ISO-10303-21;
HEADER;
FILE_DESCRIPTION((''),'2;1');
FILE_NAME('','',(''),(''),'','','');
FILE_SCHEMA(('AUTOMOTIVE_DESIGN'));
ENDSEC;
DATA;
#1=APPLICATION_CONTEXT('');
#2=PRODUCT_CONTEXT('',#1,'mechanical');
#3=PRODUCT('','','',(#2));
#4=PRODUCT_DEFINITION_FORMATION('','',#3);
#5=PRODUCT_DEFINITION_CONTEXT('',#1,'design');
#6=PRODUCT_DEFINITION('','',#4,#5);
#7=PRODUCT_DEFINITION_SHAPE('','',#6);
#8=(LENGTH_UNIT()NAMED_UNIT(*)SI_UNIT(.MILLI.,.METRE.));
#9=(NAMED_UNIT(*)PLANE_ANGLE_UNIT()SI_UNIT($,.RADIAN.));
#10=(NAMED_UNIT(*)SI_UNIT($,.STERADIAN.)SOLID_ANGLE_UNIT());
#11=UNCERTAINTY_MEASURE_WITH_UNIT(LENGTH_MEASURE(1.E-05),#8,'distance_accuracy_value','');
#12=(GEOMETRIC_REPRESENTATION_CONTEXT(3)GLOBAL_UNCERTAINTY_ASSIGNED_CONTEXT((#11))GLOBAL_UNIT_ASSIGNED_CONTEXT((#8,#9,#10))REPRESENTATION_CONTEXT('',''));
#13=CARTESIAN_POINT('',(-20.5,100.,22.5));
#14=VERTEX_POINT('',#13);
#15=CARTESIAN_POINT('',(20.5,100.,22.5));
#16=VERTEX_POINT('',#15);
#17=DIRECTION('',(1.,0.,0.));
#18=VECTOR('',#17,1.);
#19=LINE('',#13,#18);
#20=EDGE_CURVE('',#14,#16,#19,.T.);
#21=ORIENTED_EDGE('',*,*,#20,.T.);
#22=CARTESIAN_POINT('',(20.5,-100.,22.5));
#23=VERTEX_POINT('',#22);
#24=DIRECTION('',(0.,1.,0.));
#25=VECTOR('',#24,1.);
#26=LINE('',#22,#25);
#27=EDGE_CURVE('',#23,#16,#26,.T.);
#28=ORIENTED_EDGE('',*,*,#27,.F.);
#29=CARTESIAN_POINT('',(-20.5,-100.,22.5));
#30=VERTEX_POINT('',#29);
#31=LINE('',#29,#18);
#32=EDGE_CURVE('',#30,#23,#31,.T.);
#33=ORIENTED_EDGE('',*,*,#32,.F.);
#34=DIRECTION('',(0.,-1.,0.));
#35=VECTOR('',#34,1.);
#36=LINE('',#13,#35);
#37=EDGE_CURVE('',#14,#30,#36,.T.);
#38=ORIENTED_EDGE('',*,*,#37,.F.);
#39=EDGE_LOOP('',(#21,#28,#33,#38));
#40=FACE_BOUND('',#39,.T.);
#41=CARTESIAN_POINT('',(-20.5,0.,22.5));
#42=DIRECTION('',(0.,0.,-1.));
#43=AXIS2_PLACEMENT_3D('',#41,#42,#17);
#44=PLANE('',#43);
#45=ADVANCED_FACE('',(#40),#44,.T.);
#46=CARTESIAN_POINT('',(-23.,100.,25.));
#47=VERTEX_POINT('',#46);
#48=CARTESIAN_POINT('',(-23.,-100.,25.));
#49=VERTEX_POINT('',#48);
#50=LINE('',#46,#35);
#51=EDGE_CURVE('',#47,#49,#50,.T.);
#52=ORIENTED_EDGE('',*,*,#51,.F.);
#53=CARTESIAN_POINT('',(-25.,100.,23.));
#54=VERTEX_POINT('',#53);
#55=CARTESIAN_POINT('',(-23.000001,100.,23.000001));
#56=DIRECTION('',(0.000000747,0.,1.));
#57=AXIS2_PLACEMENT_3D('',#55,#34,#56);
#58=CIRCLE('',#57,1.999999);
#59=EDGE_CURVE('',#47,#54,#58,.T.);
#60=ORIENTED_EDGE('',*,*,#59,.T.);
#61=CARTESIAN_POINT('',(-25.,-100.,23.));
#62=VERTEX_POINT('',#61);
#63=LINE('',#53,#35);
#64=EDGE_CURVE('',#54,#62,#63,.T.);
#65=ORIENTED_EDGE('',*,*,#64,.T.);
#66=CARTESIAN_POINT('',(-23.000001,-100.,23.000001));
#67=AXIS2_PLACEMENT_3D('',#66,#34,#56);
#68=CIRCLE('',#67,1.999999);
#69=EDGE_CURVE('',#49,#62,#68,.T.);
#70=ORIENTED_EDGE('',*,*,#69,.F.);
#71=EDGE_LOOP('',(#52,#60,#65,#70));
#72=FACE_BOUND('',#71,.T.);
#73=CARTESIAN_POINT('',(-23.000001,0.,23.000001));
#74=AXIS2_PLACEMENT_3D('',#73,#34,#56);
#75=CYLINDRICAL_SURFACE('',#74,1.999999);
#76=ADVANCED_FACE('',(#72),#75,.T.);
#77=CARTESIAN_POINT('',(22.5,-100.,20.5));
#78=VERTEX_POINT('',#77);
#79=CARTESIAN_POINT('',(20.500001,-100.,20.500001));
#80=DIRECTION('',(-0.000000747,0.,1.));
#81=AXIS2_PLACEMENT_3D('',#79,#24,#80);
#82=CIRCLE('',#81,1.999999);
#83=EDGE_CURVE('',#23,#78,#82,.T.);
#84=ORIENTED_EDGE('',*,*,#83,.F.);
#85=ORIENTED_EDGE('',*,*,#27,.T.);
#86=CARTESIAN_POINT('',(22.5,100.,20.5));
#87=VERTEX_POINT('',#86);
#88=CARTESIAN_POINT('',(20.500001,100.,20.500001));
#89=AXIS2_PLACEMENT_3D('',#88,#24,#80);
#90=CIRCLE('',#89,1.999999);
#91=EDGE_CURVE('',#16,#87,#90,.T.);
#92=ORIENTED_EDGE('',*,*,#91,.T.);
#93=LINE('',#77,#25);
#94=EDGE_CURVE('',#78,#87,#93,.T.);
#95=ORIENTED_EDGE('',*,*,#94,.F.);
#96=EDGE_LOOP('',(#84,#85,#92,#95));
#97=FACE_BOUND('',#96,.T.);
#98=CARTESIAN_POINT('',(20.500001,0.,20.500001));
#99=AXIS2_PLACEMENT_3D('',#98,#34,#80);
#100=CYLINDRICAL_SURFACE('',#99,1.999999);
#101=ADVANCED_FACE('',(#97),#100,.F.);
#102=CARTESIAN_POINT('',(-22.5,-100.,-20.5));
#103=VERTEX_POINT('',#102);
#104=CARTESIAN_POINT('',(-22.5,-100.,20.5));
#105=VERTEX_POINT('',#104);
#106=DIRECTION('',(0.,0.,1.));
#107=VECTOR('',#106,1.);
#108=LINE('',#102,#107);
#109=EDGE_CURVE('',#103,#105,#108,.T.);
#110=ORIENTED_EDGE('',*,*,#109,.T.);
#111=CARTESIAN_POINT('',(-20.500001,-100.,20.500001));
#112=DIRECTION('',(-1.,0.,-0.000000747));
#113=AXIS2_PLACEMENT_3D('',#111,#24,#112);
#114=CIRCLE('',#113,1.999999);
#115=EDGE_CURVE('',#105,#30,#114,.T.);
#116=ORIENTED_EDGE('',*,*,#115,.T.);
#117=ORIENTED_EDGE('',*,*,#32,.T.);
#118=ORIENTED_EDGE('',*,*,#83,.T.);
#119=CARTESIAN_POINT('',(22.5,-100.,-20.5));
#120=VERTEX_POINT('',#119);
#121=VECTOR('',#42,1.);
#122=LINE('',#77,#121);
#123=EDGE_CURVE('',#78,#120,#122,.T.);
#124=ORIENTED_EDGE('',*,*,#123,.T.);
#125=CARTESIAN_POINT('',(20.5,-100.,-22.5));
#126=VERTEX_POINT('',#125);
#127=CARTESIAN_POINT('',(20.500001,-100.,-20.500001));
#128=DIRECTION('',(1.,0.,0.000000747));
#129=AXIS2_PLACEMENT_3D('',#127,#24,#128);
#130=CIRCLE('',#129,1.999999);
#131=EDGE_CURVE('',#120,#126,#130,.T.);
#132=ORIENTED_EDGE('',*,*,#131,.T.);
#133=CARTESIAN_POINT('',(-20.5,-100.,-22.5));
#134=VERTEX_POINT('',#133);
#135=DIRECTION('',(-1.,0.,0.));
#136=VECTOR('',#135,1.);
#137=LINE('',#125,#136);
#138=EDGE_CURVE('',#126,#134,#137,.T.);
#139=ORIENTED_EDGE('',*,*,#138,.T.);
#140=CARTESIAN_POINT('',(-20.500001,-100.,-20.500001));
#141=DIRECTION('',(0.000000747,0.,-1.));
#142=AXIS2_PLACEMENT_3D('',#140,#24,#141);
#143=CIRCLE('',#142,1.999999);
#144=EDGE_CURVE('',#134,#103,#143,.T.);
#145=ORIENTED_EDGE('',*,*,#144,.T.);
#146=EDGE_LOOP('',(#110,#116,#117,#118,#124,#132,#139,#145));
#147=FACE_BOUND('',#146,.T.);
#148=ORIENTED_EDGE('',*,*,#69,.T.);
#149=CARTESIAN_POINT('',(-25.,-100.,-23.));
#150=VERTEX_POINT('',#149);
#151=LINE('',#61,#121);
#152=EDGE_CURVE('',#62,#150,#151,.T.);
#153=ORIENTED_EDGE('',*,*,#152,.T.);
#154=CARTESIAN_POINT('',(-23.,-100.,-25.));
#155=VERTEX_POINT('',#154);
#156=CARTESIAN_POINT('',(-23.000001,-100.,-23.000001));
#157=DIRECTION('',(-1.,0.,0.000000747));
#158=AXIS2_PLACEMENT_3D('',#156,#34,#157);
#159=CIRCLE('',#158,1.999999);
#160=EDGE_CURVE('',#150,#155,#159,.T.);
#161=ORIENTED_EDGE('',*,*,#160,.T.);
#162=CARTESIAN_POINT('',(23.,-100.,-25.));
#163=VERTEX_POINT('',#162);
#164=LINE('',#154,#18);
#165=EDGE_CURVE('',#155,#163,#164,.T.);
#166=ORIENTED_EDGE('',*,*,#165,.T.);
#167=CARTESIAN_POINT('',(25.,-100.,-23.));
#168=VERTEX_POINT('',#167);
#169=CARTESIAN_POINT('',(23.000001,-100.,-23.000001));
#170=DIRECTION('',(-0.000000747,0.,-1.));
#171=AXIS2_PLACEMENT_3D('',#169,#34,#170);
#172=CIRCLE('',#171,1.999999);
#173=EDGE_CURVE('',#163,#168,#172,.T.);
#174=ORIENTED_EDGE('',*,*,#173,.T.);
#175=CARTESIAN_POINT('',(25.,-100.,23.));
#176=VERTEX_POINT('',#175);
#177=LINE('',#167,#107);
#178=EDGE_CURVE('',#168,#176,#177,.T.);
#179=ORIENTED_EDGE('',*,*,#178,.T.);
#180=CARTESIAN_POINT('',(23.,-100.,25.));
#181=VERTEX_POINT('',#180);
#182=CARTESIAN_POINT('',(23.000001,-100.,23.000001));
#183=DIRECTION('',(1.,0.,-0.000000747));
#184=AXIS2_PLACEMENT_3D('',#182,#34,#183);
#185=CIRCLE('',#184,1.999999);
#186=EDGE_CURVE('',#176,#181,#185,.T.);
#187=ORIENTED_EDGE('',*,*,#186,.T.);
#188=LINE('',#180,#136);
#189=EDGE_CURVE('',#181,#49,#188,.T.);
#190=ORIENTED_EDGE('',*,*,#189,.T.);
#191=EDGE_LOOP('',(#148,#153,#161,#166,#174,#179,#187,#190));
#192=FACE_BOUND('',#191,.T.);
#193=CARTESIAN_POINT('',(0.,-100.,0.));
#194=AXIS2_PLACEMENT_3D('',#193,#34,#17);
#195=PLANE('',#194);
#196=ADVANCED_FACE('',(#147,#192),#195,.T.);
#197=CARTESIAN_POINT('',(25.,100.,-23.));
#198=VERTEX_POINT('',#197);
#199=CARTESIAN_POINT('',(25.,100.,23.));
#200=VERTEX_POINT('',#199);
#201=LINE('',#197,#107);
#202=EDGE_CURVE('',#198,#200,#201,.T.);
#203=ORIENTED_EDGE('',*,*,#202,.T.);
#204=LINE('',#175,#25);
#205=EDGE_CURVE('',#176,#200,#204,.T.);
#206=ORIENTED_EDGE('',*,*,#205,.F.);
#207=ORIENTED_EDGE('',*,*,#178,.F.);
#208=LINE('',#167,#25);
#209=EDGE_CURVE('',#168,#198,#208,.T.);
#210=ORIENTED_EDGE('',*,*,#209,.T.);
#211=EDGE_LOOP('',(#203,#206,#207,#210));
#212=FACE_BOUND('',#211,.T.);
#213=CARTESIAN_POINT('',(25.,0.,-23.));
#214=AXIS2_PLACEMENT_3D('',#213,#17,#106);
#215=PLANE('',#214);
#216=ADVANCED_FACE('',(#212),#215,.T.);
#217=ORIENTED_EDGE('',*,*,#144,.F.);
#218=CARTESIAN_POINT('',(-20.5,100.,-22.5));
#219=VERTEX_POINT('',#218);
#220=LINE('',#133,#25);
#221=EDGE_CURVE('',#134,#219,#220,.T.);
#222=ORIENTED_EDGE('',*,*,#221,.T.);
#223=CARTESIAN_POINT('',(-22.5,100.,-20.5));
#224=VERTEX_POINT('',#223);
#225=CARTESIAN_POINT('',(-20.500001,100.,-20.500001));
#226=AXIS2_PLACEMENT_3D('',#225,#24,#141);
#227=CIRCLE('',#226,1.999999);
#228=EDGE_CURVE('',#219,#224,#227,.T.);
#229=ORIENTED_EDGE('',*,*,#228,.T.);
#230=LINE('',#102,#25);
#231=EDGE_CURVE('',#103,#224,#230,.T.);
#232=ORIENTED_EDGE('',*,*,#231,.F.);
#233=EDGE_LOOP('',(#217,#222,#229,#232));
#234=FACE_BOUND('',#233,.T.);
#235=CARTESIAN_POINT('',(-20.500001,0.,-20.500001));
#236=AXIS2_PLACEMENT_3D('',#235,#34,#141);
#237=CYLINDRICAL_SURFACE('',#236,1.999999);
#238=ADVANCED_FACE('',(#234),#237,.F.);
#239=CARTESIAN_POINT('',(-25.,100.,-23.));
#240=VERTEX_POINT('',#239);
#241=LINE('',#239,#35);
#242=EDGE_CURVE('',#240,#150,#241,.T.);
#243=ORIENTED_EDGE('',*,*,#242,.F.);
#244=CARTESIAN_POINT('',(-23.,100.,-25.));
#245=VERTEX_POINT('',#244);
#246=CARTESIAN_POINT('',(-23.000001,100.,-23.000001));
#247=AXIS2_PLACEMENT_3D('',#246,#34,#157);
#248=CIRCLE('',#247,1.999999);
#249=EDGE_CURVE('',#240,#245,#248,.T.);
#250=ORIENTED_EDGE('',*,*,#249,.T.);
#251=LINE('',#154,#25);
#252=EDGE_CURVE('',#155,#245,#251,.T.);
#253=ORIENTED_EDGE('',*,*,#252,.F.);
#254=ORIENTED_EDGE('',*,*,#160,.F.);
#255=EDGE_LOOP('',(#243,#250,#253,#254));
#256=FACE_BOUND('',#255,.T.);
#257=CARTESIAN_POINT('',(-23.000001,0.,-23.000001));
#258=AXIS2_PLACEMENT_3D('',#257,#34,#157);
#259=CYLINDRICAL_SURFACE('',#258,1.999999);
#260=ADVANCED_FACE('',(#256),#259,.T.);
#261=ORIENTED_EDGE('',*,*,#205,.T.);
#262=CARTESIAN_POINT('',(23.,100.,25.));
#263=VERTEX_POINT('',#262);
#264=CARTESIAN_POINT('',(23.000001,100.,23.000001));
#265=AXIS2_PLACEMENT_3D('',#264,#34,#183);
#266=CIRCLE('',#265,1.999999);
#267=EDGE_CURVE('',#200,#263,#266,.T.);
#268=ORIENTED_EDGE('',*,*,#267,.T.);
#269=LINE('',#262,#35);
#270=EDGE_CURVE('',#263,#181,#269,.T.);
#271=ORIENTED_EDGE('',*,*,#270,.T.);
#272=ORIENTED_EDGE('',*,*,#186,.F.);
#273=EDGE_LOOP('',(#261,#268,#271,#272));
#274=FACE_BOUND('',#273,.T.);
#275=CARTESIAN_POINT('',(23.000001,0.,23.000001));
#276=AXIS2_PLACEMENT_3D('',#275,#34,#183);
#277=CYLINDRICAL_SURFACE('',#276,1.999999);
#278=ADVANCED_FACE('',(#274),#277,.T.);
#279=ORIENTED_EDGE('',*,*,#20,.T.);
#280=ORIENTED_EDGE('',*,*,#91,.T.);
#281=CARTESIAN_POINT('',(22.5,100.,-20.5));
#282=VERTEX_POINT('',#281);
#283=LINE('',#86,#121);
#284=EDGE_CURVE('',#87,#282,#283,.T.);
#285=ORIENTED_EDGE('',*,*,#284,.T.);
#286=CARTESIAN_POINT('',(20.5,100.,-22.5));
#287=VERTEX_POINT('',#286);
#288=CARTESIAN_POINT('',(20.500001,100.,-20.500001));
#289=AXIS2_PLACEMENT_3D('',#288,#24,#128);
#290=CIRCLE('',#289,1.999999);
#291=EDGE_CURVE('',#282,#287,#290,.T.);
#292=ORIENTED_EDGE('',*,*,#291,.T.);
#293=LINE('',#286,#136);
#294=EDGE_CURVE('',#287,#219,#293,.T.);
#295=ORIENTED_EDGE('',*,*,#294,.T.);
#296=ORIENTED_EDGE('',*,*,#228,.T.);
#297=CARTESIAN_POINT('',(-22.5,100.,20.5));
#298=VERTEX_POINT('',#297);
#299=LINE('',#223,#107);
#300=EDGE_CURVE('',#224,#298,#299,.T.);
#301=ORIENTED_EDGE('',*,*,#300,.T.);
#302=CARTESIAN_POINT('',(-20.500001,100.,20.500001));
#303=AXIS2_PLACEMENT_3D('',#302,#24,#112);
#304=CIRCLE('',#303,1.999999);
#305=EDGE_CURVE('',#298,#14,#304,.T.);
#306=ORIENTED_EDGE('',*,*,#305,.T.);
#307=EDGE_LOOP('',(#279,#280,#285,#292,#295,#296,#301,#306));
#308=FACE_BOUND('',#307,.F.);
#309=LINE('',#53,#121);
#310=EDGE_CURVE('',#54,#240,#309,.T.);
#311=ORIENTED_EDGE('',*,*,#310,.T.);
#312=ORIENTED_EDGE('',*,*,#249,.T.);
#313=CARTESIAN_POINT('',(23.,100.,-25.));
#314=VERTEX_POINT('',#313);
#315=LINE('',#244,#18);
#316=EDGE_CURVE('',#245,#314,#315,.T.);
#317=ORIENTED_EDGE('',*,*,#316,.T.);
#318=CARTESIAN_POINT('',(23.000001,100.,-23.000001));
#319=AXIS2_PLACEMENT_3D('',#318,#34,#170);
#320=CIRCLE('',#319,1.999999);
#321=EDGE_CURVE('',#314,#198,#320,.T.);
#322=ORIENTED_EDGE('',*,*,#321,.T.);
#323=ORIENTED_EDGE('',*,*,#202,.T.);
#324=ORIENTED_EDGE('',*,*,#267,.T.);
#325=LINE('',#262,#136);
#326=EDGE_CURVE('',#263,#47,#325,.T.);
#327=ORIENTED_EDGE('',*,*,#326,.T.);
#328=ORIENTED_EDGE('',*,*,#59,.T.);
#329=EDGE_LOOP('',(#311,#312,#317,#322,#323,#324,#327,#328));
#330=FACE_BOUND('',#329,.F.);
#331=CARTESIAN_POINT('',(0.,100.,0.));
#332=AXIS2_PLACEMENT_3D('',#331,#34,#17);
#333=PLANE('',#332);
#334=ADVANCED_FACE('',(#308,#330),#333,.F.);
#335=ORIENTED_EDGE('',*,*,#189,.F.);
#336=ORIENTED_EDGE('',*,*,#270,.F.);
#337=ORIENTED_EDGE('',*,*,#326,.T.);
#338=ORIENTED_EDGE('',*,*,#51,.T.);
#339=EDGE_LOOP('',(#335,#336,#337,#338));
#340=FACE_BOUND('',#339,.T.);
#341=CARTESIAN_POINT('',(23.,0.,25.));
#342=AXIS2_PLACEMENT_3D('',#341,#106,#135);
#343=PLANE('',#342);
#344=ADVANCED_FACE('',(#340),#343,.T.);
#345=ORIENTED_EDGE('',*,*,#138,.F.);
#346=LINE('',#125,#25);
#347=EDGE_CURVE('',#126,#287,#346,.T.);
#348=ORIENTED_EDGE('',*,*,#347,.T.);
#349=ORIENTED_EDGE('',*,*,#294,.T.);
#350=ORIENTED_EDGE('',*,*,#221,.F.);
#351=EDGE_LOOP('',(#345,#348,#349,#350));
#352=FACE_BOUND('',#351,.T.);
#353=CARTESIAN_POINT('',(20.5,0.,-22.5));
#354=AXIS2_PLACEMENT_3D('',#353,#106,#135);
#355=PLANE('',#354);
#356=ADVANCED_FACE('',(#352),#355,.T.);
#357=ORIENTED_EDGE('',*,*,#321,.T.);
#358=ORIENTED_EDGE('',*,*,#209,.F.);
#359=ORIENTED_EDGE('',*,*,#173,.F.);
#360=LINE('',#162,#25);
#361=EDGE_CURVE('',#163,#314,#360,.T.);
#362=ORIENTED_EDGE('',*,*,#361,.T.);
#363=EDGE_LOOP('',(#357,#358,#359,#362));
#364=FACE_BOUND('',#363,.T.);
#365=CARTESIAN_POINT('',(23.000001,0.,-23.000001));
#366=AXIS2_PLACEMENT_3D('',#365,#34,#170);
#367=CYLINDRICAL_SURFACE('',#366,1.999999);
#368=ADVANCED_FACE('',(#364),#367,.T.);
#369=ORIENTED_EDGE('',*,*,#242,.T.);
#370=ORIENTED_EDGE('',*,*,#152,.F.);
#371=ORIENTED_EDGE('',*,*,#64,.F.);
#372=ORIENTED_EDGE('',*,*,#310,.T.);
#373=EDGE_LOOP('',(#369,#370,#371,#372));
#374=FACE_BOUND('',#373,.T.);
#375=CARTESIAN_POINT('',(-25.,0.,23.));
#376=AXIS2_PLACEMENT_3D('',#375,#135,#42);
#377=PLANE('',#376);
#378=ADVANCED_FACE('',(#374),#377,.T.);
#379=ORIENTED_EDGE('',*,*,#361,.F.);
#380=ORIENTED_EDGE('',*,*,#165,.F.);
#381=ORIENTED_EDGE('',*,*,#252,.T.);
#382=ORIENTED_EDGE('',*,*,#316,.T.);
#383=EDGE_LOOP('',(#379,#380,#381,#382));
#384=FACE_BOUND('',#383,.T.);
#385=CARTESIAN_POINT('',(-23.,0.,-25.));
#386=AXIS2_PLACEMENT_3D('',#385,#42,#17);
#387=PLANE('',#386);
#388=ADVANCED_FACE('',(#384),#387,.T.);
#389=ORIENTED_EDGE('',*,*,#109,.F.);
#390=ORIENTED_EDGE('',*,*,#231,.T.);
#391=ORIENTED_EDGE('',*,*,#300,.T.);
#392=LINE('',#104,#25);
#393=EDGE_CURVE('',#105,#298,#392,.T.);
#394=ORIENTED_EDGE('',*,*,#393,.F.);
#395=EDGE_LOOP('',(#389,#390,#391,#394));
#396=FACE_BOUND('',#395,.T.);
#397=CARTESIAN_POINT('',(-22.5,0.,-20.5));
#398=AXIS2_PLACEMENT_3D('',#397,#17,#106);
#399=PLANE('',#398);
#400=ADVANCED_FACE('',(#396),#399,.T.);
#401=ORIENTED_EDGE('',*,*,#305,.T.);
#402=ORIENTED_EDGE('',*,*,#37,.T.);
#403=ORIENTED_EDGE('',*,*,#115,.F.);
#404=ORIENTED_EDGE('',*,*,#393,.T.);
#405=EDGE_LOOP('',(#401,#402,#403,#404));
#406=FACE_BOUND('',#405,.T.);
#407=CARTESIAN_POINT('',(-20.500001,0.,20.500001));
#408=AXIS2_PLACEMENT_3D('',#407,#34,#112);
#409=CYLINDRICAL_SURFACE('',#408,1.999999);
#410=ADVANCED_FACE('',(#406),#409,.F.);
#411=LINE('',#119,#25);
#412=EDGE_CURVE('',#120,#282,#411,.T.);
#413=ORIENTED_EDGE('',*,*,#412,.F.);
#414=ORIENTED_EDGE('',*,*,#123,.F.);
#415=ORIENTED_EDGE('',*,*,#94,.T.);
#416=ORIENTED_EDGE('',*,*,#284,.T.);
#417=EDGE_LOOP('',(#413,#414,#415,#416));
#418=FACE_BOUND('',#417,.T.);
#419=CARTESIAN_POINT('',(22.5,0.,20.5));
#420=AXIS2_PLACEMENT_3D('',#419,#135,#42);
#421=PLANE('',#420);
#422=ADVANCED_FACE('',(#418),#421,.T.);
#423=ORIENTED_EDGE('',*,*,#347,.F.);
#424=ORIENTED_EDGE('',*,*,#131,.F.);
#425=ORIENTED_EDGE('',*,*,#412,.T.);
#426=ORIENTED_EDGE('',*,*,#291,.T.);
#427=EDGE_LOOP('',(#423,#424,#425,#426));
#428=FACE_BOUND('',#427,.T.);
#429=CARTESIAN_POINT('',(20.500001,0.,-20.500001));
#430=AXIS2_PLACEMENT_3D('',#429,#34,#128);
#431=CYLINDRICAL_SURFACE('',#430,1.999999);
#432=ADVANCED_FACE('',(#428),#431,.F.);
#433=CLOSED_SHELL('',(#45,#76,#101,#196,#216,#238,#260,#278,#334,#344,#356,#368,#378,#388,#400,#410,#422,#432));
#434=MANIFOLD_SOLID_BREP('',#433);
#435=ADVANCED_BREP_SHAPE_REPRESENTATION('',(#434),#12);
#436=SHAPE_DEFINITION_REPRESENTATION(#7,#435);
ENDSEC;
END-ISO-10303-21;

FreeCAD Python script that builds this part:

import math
import FreeCAD as App
import Part
import Sketcher

doc = App.newDocument("Part")
body = doc.addObject("PartDesign::Body", "Body")

# Sketch on XZ plane
sketch1 = body.newObject("Sketcher::SketchObject", "Sketch")
sketch1.AttachmentSupport = (doc.getObject("XZ_Plane"), [""])
sketch1.MapMode = "FlatFace"
sketch1.addGeometry([
    Part.ArcOfCircle(Part.Circle(App.Vector(23.000001, 23.000001, 0), App.Vector(0, 0, 1), 1.999999), math.radians(-0.000043), math.radians(90.000043)),  # 0
    Part.LineSegment(App.Vector(23, 25, 0), App.Vector(-23, 25, 0)),  # 1
    Part.ArcOfCircle(Part.Circle(App.Vector(-23.000001, 23.000001, 0), App.Vector(0, 0, 1), 1.999999), math.radians(89.999957), math.radians(180.000043)),  # 2
    Part.LineSegment(App.Vector(-25, 23, 0), App.Vector(-25, -23, 0)),  # 3
    Part.ArcOfCircle(Part.Circle(App.Vector(-23.000001, -23.000001, 0), App.Vector(0, 0, 1), 1.999999), math.radians(179.999957), math.radians(270.000043)),  # 4
    Part.LineSegment(App.Vector(-23, -25, 0), App.Vector(23, -25, 0)),  # 5
    Part.ArcOfCircle(Part.Circle(App.Vector(23.000001, -23.000001, 0), App.Vector(0, 0, 1), 1.999999), math.radians(-90.000043), math.radians(0.000043)),  # 6
    Part.LineSegment(App.Vector(25, -23, 0), App.Vector(25, 23, 0)),  # 7
    Part.ArcOfCircle(Part.Circle(App.Vector(-20.500001, 20.500001, 0), App.Vector(0, 0, 1), 1.999999), math.radians(89.999957), math.radians(180.000043)),  # 8
    Part.LineSegment(App.Vector(-20.5, 22.5, 0), App.Vector(20.5, 22.5, 0)),  # 9
    Part.ArcOfCircle(Part.Circle(App.Vector(20.500001, 20.500001, 0), App.Vector(0, 0, 1), 1.999999), math.radians(-0.000043), math.radians(90.000043)),  # 10
    Part.LineSegment(App.Vector(22.5, 20.5, 0), App.Vector(22.5, -20.5, 0)),  # 11
    Part.ArcOfCircle(Part.Circle(App.Vector(20.500001, -20.500001, 0), App.Vector(0, 0, 1), 1.999999), math.radians(-90.000043), math.radians(0.000043)),  # 12
    Part.LineSegment(App.Vector(20.5, -22.5, 0), App.Vector(-20.5, -22.5, 0)),  # 13
    Part.ArcOfCircle(Part.Circle(App.Vector(-20.500001, -20.500001, 0), App.Vector(0, 0, 1), 1.999999), math.radians(179.999957), math.radians(270.000043)),  # 14
    Part.LineSegment(App.Vector(-22.5, -20.5, 0), App.Vector(-22.5, 20.5, 0)),  # 15
], False)
sketch1.addConstraint([
    Sketcher.Constraint("Tangent", 0, 2, 1, 1),
    Sketcher.Constraint("Tangent", 1, 2, 2, 1),
    Sketcher.Constraint("Tangent", 2, 2, 3, 1),
    Sketcher.Constraint("Tangent", 3, 2, 4, 1),
    Sketcher.Constraint("Tangent", 4, 2, 5, 1),
    Sketcher.Constraint("Tangent", 5, 2, 6, 1),
    Sketcher.Constraint("Tangent", 6, 2, 7, 1),
    Sketcher.Constraint("Tangent", 7, 2, 0, 1),
    Sketcher.Constraint("Tangent", 8, 1, 9, 1),
    Sketcher.Constraint("Tangent", 9, 2, 10, 2),
    Sketcher.Constraint("Tangent", 10, 1, 11, 1),
    Sketcher.Constraint("Tangent", 11, 2, 12, 2),
    Sketcher.Constraint("Tangent", 12, 1, 13, 1),
    Sketcher.Constraint("Tangent", 13, 2, 14, 2),
    Sketcher.Constraint("Tangent", 14, 1, 15, 1),
    Sketcher.Constraint("Tangent", 15, 2, 8, 2),
    Sketcher.Constraint("Horizontal", 1),
    Sketcher.Constraint("Vertical", 3),
    Sketcher.Constraint("Horizontal", 5),
    Sketcher.Constraint("Vertical", 7),
    Sketcher.Constraint("Horizontal", 9),
    Sketcher.Constraint("Vertical", 11),
    Sketcher.Constraint("Horizontal", 13),
    Sketcher.Constraint("Vertical", 15),
    Sketcher.Constraint("Equal", 0, 2),
    Sketcher.Constraint("Equal", 2, 4),
    Sketcher.Constraint("Equal", 4, 6),
    Sketcher.Constraint("Equal", 6, 8),
    Sketcher.Constraint("Equal", 8, 10),
    Sketcher.Constraint("Equal", 10, 12),
    Sketcher.Constraint("Equal", 12, 14),
    Sketcher.Constraint("Symmetric", 0, 3, 4, 3, -1, 1),
    Sketcher.Constraint("Symmetric", 8, 3, 12, 3, -1, 1),
    Sketcher.Constraint("Equal", 5, 3),
    Sketcher.Constraint("Equal", 13, 11),
    Sketcher.Constraint("Radius", 0, 1.999999),
    Sketcher.Constraint("DistanceX", 1, 2, 1, 1, 46.0),
    Sketcher.Constraint("DistanceX", 9, 1, 9, 2, 41.0),
])
pad1 = body.newObject("PartDesign::Pad", "Pad")
pad1.Profile = sketch1
pad1.Length = 200
pad1.Midplane = True

doc.recompute()
